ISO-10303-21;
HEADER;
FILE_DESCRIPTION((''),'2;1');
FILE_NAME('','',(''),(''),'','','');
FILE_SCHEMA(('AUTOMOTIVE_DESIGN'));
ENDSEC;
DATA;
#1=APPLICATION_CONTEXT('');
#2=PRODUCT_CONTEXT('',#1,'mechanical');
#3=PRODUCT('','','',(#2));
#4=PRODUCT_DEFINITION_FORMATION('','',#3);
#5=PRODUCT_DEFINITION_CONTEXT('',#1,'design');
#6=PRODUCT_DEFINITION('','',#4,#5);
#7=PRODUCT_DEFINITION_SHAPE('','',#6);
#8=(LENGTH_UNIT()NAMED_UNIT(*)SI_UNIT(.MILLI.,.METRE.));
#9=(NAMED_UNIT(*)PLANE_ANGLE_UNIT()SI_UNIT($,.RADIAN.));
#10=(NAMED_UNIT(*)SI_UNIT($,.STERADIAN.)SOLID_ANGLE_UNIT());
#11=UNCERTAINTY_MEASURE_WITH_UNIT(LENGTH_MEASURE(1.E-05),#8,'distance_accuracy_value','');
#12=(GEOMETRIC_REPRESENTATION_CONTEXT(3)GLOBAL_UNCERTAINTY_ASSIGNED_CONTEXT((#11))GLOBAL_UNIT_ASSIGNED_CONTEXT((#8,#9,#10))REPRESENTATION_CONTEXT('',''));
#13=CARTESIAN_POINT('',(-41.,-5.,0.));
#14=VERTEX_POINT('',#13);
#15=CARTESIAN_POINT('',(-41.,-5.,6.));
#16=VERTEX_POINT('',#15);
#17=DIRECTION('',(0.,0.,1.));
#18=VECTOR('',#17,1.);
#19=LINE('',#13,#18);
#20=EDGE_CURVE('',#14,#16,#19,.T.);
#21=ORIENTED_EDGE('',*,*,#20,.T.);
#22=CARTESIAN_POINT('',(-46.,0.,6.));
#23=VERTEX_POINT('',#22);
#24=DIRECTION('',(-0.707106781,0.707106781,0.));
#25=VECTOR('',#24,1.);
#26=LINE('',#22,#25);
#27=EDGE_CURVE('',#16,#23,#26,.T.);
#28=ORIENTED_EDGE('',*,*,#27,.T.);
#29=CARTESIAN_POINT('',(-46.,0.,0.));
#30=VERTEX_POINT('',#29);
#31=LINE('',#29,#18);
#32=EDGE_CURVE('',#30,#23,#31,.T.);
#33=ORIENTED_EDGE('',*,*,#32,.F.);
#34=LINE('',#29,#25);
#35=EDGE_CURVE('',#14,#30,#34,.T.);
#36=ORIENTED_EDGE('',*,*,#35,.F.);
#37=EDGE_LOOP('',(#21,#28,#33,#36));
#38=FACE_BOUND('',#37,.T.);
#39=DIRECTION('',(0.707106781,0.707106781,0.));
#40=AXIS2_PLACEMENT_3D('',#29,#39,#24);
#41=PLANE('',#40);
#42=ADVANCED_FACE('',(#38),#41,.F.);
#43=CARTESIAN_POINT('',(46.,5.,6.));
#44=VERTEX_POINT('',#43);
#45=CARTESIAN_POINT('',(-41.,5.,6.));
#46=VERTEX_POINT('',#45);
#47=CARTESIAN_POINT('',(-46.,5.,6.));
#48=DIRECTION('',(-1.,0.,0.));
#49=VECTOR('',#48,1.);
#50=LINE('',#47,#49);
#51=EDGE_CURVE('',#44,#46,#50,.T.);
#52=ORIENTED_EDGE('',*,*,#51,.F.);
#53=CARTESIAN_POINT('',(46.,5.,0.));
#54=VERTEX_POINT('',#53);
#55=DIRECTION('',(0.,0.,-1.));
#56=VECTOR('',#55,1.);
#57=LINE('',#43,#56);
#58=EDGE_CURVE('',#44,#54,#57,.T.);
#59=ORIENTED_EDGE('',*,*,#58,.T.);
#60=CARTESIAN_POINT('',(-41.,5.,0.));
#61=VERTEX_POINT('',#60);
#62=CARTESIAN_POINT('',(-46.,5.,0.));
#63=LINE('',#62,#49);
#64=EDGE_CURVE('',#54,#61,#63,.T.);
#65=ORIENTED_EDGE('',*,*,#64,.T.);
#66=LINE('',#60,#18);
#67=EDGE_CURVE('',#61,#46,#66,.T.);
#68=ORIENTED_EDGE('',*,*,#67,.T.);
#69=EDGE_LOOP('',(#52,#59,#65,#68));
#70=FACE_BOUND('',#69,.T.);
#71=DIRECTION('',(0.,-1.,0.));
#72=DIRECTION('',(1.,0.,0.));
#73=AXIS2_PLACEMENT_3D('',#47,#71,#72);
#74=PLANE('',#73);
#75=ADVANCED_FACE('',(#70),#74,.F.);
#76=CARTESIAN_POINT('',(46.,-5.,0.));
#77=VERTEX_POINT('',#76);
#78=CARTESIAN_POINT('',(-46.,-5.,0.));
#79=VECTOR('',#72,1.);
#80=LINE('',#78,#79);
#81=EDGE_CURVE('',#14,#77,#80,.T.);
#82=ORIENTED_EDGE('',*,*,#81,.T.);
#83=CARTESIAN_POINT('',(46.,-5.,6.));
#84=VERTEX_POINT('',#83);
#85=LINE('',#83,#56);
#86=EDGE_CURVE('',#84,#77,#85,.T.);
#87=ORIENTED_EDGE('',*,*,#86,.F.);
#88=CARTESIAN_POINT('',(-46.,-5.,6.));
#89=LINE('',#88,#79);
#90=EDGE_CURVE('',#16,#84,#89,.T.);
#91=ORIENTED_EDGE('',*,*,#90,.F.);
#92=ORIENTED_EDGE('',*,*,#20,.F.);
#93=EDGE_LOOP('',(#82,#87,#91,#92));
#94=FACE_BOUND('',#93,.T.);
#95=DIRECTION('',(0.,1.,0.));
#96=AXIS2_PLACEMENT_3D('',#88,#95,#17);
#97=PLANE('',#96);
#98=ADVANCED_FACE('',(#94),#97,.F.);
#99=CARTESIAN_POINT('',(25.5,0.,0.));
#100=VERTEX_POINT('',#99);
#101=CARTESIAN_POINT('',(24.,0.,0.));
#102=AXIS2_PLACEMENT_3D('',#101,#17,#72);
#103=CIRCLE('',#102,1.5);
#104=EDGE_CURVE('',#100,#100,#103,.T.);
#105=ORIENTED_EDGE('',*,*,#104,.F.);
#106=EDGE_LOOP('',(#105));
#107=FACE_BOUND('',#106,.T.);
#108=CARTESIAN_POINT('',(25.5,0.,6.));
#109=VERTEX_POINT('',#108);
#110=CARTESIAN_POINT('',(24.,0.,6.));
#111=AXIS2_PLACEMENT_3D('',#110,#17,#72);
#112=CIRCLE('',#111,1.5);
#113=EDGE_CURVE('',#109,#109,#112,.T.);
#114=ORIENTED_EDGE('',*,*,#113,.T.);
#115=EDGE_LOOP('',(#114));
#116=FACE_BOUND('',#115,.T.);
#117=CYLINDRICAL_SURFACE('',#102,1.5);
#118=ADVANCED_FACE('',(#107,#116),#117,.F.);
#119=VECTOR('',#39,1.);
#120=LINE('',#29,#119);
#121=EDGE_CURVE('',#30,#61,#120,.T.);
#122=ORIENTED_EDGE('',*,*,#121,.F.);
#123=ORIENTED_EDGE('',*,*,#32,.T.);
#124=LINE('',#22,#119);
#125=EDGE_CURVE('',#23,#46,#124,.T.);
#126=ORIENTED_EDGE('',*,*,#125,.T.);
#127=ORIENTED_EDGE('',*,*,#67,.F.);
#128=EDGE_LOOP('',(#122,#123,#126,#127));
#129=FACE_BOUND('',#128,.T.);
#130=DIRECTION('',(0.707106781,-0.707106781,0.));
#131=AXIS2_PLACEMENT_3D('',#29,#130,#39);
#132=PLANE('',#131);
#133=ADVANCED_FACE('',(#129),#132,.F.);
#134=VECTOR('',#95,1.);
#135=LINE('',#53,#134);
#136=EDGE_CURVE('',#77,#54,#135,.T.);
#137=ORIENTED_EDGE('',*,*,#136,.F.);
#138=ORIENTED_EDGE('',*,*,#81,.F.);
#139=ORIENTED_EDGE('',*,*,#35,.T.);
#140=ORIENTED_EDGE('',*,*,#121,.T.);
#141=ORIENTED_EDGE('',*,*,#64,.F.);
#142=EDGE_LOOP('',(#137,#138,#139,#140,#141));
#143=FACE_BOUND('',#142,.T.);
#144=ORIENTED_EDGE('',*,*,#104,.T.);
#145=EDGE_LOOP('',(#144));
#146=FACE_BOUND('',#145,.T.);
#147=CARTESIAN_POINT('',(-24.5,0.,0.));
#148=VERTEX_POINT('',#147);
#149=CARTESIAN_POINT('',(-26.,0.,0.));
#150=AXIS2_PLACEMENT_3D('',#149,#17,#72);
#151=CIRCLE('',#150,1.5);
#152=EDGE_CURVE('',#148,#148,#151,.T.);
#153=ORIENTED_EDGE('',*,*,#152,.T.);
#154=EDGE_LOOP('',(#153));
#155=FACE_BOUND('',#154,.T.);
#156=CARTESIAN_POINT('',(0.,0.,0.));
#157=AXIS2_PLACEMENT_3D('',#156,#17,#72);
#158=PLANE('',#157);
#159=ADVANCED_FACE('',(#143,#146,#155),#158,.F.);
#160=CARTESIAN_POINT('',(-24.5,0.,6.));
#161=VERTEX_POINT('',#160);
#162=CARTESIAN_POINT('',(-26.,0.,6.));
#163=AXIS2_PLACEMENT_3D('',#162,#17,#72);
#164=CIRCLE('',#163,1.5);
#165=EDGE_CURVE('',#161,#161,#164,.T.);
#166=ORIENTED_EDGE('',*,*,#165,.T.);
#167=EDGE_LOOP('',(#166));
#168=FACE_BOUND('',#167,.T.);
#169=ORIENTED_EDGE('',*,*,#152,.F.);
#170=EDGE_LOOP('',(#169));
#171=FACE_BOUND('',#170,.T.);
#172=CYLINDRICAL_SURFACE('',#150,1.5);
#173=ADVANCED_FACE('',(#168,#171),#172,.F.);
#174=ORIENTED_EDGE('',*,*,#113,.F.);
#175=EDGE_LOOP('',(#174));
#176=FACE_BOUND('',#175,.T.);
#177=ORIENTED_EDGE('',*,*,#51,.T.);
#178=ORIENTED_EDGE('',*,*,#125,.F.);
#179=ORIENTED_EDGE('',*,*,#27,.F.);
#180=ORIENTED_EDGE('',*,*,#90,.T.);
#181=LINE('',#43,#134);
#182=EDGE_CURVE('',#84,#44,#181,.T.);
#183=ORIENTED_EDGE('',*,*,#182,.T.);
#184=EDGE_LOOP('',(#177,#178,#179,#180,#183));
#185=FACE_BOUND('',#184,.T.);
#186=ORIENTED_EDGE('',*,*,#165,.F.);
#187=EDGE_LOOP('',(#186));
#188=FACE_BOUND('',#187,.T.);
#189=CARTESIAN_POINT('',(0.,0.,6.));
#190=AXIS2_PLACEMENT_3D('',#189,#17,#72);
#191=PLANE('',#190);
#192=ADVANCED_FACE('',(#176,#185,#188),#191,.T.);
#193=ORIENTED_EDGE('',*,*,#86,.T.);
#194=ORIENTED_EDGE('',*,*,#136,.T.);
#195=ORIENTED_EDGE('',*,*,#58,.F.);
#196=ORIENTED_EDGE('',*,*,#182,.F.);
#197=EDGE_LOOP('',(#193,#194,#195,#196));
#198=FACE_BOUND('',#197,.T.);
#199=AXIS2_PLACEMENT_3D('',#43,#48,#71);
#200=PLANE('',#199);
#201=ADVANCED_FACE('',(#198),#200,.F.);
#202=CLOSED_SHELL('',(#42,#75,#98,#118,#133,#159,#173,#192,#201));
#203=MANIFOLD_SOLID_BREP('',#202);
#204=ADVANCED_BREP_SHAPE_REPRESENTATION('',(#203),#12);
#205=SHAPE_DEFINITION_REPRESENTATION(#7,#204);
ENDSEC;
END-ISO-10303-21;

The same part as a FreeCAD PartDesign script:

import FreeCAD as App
import Part
import Sketcher
from FreeCAD import Vector

doc = App.newDocument("Part")
body = doc.addObject("PartDesign::Body", "Body")

# Sketch on XY plane
sketch1 = doc.addObject("Sketcher::SketchObject", "Sketch")
body.addObject(sketch1)
sketch1.AttachmentSupport = (doc.XY_Plane, [""])
sketch1.MapMode = "FlatFace"
sketch1.addGeometry(Part.LineSegment(Vector(-46, 5, 0), Vector(-46, -5, 0)), False)
sketch1.addGeometry(Part.LineSegment(Vector(-46, -5, 0), Vector(46, -5, 0)), False)
sketch1.addGeometry(Part.LineSegment(Vector(46, -5, 0), Vector(46, 5, 0)), False)
sketch1.addGeometry(Part.LineSegment(Vector(46, 5, 0), Vector(-46, 5, 0)), False)
sketch1.addConstraint(Sketcher.Constraint("Coincident", 0, 2, 1, 1))
sketch1.addConstraint(Sketcher.Constraint("Coincident", 1, 2, 2, 1))
sketch1.addConstraint(Sketcher.Constraint("Coincident", 2, 2, 3, 1))
sketch1.addConstraint(Sketcher.Constraint("Coincident", 3, 2, 0, 1))
sketch1.addConstraint(Sketcher.Constraint("Vertical", 0))
sketch1.addConstraint(Sketcher.Constraint("Horizontal", 1))
sketch1.addConstraint(Sketcher.Constraint("Vertical", 2))
sketch1.addConstraint(Sketcher.Constraint("Horizontal", 3))
sketch1.addConstraint(Sketcher.Constraint("Symmetric", 0, 2, 2, 2, -1, 1))
sketch1.addConstraint(Sketcher.Constraint("DistanceX", 1, 1, 1, 2, 92.0))
sketch1.addConstraint(Sketcher.Constraint("DistanceY", 0, 2, 0, 1, 10.0))
pad1 = doc.addObject("PartDesign::Pad", "Pad")
body.addObject(pad1)
pad1.Profile = sketch1
pad1.Length = 6

# Sketch on XY plane
sketch2 = doc.addObject("Sketcher::SketchObject", "Sketch001")
body.addObject(sketch2)
sketch2.AttachmentSupport = (doc.XY_Plane, [""])
sketch2.MapMode = "FlatFace"
sketch2.AttachmentOffset = App.Placement(Vector(0, 0, 6), App.Rotation())
sketch2.addGeometry(Part.LineSegment(Vector(-46, 0, 0), Vector(-46, -5, 0)), False)
sketch2.addGeometry(Part.LineSegment(Vector(-46, -5, 0), Vector(-41, -5, 0)), False)
sketch2.addGeometry(Part.LineSegment(Vector(-41, -5, 0), Vector(-46, 0, 0)), False)
sketch2.addConstraint(Sketcher.Constraint("Coincident", 0, 2, 1, 1))
sketch2.addConstraint(Sketcher.Constraint("Coincident", 1, 2, 2, 1))
sketch2.addConstraint(Sketcher.Constraint("Coincident", 2, 2, 0, 1))
sketch2.addConstraint(Sketcher.Constraint("Vertical", 0))
sketch2.addConstraint(Sketcher.Constraint("Horizontal", 1))
sketch2.addConstraint(Sketcher.Constraint("PointOnObject", 2, 2, -1))
sketch2.addConstraint(Sketcher.Constraint("Equal", 1, 0))
sketch2.addConstraint(Sketcher.Constraint("DistanceX", 1, 1, 1, 2, 5.0))
sketch2.addConstraint(Sketcher.Constraint("DistanceX", 0, 2, -1, 1, 46.0))
pocket1 = doc.addObject("PartDesign::Pocket", "Pocket")
body.addObject(pocket1)
pocket1.Profile = sketch2
pocket1.Length = 6

# Sketch on XY plane
sketch3 = doc.addObject("Sketcher::SketchObject", "Sketch002")
body.addObject(sketch3)
sketch3.AttachmentSupport = (doc.XY_Plane, [""])
sketch3.MapMode = "FlatFace"
sketch3.AttachmentOffset = App.Placement(Vector(0, 0, 6), App.Rotation())
sketch3.addGeometry(Part.LineSegment(Vector(-46, 0, 0), Vector(-41, 5, 0)), False)
sketch3.addGeometry(Part.LineSegment(Vector(-41, 5, 0), Vector(-46, 5, 0)), False)
sketch3.addGeometry(Part.LineSegment(Vector(-46, 5, 0), Vector(-46, 0, 0)), False)
sketch3.addConstraint(Sketcher.Constraint("Coincident", 0, 2, 1, 1))
sketch3.addConstraint(Sketcher.Constraint("Coincident", 1, 2, 2, 1))
sketch3.addConstraint(Sketcher.Constraint("Coincident", 2, 2, 0, 1))
sketch3.addConstraint(Sketcher.Constraint("Horizontal", 1))
sketch3.addConstraint(Sketcher.Constraint("Vertical", 2))
sketch3.addConstraint(Sketcher.Constraint("PointOnObject", 2, 2, -1))
sketch3.addConstraint(Sketcher.Constraint("Equal", 1, 2))
sketch3.addConstraint(Sketcher.Constraint("DistanceX", 1, 2, 1, 1, 5.0))
sketch3.addConstraint(Sketcher.Constraint("DistanceX", 0, 2, -1, 1, 41.0))
pocket2 = doc.addObject("PartDesign::Pocket", "Pocket001")
body.addObject(pocket2)
pocket2.Profile = sketch3
pocket2.Length = 6

# Sketch on XY plane
sketch4 = doc.addObject("Sketcher::SketchObject", "Sketch003")
body.addObject(sketch4)
sketch4.AttachmentSupport = (doc.XY_Plane, [""])
sketch4.MapMode = "FlatFace"
sketch4.AttachmentOffset = App.Placement(Vector(0, 0, 6), App.Rotation())
sketch4.addGeometry(Part.Circle(Vector(-26, 0, 0), Vector(0, 0, 1), 1.5), False)
sketch4.addGeometry(Part.Circle(Vector(24, 0, 0), Vector(0, 0, 1), 1.5), False)
sketch4.addConstraint(Sketcher.Constraint("Equal", 0, 1))
sketch4.addConstraint(Sketcher.Constraint("PointOnObject", 0, 3, -1))
sketch4.addConstraint(Sketcher.Constraint("PointOnObject", 1, 3, -1))
sketch4.addConstraint(Sketcher.Constraint("Diameter", 0, 3.0))
sketch4.addConstraint(Sketcher.Constraint("DistanceX", 0, 3, -1, 1, 26.0))
sketch4.addConstraint(Sketcher.Constraint("DistanceX", -1, 1, 1, 3, 24.0))
pocket3 = doc.addObject("PartDesign::Pocket", "Pocket002")
body.addObject(pocket3)
pocket3.Profile = sketch4
pocket3.Length = 6

doc.recompute()
